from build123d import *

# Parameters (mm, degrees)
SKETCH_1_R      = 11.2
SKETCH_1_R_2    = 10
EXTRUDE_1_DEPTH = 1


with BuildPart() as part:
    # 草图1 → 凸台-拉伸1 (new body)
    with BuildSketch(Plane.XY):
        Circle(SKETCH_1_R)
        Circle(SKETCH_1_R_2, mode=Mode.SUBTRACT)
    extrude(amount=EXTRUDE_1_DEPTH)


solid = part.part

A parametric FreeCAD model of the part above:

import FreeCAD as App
import Part
import Sketcher
from FreeCAD import Vector
Q = App.Units.Quantity

doc = App.newDocument("Part")
body = doc.addObject("PartDesign::Body", "Body")

# Sketch on XY plane
sketch1 = body.newObject("Sketcher::SketchObject", "Sketch")
sketch1.AttachmentSupport = (doc.getObject("XY_Plane"), [""])
sketch1.MapMode = "FlatFace"
sketch1.addGeometry(Part.Circle(Vector(0, 0, 0), Vector(0, 0, 1), 11), False)
sketch1.addGeometry(Part.Circle(Vector(0, 0, 0), Vector(0, 0, 1), 10), False)
sketch1.addConstraint(Sketcher.Constraint("Coincident", 0, 3, -1, 1))
sketch1.addConstraint(Sketcher.Constraint("Coincident", 1, 3, -1, 1))
sketch1.addConstraint(Sketcher.Constraint("Diameter", 1, Q("20 mm")))
sketch1.addConstraint(Sketcher.Constraint("Diameter", 0, Q("22.4 mm")))
pad1 = body.newObject("PartDesign::Pad", "Pad")
pad1.Profile = sketch1
pad1.Length = 1

doc.recompute()
